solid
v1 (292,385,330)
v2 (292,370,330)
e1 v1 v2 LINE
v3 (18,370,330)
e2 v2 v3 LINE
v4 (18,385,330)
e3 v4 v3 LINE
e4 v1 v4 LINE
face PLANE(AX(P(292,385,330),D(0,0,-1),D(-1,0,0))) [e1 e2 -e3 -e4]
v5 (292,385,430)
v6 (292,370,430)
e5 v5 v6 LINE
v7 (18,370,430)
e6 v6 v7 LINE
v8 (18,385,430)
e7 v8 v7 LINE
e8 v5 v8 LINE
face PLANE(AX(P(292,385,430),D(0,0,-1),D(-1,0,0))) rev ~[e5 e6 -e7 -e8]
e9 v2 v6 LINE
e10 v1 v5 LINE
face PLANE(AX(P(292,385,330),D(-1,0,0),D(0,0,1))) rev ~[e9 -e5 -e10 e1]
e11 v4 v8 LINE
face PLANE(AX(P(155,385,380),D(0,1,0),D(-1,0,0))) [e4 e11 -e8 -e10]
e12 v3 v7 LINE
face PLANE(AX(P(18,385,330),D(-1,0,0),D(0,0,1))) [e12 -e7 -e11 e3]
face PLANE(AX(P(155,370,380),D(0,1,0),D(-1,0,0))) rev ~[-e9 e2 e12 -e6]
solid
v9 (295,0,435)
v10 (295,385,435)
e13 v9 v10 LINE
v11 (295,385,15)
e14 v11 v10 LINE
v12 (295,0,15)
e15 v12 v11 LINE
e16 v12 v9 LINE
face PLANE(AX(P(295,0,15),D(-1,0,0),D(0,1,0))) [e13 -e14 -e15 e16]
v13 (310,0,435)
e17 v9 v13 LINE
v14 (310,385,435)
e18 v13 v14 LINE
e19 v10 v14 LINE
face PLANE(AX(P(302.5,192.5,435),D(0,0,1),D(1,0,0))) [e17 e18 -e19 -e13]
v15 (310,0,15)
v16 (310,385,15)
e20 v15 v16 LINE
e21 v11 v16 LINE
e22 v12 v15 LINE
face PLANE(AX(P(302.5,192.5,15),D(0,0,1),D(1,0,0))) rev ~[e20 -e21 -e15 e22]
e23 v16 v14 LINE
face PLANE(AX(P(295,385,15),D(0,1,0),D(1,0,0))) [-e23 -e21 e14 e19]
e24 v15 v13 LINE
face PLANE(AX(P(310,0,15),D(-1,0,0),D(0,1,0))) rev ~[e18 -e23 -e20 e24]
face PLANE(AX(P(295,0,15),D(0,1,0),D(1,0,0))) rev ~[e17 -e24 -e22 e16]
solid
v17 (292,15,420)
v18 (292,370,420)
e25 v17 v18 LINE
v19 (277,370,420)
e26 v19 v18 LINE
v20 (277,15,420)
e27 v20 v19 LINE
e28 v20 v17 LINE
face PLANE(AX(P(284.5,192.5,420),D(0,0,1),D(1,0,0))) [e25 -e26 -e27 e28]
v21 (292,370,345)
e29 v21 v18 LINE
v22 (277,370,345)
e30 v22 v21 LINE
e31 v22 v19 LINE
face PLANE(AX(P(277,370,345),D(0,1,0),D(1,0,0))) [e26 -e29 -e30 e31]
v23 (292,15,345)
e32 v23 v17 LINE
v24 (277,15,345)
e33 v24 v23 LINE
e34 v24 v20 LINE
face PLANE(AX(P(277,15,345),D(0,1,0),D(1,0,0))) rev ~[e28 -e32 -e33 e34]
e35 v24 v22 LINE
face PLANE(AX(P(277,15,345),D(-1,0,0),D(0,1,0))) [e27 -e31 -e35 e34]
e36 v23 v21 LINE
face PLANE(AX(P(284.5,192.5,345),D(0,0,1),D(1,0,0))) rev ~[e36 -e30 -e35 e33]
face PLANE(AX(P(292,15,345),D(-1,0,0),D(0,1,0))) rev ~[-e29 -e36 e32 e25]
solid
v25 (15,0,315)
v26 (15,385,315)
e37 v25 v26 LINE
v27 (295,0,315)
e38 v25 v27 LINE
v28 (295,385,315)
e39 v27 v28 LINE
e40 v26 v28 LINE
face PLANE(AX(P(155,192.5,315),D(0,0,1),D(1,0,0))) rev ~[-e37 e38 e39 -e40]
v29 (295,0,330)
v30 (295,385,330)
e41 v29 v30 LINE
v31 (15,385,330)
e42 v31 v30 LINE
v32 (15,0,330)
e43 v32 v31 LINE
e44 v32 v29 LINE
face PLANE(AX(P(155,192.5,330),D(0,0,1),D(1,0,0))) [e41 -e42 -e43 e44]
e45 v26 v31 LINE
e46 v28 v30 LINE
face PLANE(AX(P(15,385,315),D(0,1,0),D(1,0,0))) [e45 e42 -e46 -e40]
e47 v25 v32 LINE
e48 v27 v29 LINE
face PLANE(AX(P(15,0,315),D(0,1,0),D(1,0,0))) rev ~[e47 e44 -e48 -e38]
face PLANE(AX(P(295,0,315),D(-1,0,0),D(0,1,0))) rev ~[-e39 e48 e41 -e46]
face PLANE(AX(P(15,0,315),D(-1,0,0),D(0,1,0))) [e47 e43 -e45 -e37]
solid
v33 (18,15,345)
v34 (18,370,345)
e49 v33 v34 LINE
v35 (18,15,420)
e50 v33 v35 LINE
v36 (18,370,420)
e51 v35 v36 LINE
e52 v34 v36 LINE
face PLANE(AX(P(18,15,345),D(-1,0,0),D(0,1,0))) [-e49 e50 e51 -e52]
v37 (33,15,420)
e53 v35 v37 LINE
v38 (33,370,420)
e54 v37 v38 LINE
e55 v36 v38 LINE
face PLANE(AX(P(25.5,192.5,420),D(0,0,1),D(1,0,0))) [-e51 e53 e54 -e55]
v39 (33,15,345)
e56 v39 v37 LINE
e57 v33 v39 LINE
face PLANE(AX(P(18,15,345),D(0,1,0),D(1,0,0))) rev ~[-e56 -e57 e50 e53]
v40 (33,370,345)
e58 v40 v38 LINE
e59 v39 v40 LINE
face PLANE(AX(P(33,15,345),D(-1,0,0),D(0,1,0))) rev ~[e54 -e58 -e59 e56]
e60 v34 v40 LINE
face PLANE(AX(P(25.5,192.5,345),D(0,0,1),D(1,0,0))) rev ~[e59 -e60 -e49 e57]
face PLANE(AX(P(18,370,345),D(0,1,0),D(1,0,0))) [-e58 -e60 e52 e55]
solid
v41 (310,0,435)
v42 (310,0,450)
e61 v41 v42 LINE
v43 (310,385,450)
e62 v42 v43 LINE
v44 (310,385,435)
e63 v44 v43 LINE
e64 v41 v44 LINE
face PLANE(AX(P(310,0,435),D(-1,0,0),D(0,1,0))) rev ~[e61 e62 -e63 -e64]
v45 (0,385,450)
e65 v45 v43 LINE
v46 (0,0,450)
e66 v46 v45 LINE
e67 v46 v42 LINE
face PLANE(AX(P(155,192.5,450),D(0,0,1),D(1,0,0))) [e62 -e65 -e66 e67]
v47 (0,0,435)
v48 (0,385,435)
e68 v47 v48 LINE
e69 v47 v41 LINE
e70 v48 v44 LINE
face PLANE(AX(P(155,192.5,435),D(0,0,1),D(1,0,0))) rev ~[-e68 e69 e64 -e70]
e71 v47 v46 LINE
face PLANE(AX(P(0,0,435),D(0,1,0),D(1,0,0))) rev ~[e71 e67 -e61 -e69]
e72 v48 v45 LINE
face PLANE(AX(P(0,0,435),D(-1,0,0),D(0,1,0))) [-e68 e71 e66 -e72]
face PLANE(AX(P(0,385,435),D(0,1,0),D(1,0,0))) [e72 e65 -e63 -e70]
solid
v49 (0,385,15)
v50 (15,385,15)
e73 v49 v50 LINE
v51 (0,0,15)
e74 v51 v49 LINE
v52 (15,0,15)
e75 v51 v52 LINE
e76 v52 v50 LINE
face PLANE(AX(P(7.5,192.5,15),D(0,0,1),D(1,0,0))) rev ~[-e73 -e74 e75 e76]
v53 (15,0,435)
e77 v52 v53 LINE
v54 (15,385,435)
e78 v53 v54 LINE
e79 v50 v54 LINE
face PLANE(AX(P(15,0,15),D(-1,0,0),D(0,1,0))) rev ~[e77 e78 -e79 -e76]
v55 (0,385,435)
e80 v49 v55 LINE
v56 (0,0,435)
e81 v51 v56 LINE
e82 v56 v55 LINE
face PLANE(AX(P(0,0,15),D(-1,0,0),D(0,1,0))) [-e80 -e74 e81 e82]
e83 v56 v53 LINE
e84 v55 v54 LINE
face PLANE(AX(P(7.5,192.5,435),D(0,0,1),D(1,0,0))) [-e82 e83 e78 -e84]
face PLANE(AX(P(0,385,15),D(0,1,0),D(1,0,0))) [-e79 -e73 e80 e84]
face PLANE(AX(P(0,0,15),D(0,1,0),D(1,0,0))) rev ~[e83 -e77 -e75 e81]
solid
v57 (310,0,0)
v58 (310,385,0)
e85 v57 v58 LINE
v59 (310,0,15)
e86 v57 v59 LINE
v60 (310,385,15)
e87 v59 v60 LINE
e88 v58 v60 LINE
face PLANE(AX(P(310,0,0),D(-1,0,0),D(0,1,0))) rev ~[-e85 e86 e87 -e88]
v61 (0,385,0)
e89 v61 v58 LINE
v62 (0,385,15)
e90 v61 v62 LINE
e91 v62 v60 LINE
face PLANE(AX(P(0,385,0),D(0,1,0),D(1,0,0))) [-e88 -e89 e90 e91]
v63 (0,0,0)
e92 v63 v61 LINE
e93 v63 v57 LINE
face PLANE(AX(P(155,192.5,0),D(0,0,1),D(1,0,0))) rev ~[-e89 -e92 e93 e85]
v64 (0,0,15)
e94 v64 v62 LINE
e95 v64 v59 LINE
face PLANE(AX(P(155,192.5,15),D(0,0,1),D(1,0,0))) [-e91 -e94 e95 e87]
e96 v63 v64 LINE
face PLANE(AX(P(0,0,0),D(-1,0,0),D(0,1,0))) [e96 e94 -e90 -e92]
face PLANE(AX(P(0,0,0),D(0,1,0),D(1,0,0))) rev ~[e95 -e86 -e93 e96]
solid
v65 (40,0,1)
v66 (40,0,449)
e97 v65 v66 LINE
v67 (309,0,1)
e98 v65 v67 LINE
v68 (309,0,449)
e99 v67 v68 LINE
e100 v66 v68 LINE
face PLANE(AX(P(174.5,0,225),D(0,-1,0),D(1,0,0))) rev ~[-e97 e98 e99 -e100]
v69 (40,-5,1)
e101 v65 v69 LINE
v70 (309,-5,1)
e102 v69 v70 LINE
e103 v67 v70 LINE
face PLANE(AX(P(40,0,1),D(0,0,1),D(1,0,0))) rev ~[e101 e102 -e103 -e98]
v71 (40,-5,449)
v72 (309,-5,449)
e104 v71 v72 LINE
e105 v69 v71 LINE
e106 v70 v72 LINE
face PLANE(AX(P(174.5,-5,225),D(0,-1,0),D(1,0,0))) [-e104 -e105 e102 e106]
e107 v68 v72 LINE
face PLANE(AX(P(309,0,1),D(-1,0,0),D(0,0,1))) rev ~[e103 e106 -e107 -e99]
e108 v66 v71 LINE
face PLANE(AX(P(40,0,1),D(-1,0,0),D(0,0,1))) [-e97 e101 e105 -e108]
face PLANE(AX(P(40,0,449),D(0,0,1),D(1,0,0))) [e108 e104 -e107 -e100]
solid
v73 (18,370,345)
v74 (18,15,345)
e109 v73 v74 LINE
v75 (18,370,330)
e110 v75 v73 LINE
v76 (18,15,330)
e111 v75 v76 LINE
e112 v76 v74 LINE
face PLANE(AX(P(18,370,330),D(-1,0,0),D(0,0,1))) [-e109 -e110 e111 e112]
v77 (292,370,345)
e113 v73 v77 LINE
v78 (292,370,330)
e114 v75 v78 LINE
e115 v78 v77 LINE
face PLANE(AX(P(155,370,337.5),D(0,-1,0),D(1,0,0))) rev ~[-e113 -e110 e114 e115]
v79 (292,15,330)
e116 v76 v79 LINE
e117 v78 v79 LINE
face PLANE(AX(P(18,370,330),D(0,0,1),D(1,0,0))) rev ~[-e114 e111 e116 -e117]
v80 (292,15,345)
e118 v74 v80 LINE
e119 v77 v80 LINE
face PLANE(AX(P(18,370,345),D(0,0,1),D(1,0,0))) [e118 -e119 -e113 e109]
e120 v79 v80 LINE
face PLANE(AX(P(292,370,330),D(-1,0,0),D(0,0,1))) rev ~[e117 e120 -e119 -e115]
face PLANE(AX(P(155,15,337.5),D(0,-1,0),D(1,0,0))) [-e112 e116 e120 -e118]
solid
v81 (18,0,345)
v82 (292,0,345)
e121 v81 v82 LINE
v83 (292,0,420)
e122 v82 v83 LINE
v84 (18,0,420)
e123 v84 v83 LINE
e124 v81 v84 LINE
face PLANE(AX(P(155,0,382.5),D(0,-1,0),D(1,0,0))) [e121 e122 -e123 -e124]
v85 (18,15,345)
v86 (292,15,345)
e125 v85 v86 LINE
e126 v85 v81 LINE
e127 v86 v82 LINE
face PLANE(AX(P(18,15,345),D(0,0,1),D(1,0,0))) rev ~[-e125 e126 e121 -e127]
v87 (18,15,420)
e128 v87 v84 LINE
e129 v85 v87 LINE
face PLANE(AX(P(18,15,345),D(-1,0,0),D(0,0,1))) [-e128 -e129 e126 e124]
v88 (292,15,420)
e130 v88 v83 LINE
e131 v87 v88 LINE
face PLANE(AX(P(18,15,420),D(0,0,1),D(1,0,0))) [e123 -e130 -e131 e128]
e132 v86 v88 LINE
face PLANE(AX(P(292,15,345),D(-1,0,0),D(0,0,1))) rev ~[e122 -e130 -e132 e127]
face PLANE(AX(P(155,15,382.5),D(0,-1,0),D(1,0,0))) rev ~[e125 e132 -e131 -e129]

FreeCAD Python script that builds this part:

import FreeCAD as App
import Part
import Sketcher
Q = App.Units.Quantity


def add_polygon(sketch, points):
    """Adds a closed chain of lines whose ends are joined by coincident constraints."""
    first, n = sketch.GeometryCount, len(points)
    for a, b in zip(points, points[1:] + points[:1]):
        sketch.addGeometry(Part.LineSegment(App.Vector(*a, 0), App.Vector(*b, 0)), False)
    for i in range(n):
        sketch.addConstraint(Sketcher.Constraint("Coincident", first + i, 2, first + (i + 1) % n, 1))

doc = App.newDocument("Part")
body = doc.addObject("PartDesign::Body", "Body")

# Sketch on XY plane
sketch1 = body.newObject("Sketcher::SketchObject", "Sketch")
sketch1.AttachmentSupport = (doc.getObject("XY_Plane"), [""])
sketch1.MapMode = "FlatFace"
add_polygon(sketch1, [(0, 385), (0, 0), (310, 0), (310, 385)])  # lines 0-3
sketch1.addConstraint(Sketcher.Constraint("Vertical", 0))
sketch1.addConstraint(Sketcher.Constraint("Horizontal", 1))
sketch1.addConstraint(Sketcher.Constraint("Vertical", 2))
sketch1.addConstraint(Sketcher.Constraint("Horizontal", 3))
sketch1.addConstraint(Sketcher.Constraint("Coincident", 0, 2, -1, 1))
sketch1.addConstraint(Sketcher.Constraint("DistanceX", 1, 1, 1, 2, Q("310 mm")))
sketch1.addConstraint(Sketcher.Constraint("DistanceY", 0, 2, 0, 1, Q("385 mm")))
pad1 = body.newObject("PartDesign::Pad", "Pad")
pad1.Profile = sketch1
pad1.Length = 15
body2 = doc.addObject("PartDesign::Body", "Body001")

# Sketch on XY plane
sketch2 = body2.newObject("Sketcher::SketchObject", "Sketch001")
sketch2.AttachmentSupport = (doc.getObject("XY_Plane001"), [""])
sketch2.MapMode = "FlatFace"
sketch2.AttachmentOffset = App.Placement(App.Vector(0, 0, 15), App.Rotation())
add_polygon(sketch2, [(0, 385), (0, 0), (15, 0), (15, 385)])  # lines 0-3
sketch2.addConstraint(Sketcher.Constraint("Vertical", 0))
sketch2.addConstraint(Sketcher.Constraint("Horizontal", 1))
sketch2.addConstraint(Sketcher.Constraint("Vertical", 2))
sketch2.addConstraint(Sketcher.Constraint("Horizontal", 3))
sketch2.addConstraint(Sketcher.Constraint("Coincident", 0, 2, -1, 1))
sketch2.addConstraint(Sketcher.Constraint("DistanceX", 1, 1, 1, 2, Q("15 mm")))
sketch2.addConstraint(Sketcher.Constraint("DistanceY", 0, 2, 0, 1, Q("385 mm")))
pad2 = body2.newObject("PartDesign::Pad", "Pad001")
pad2.Profile = sketch2
pad2.Length = 420
body3 = doc.addObject("PartDesign::Body", "Body002")

# Sketch on XY plane
sketch3 = body3.newObject("Sketcher::SketchObject", "Sketch002")
sketch3.AttachmentSupport = (doc.getObject("XY_Plane002"), [""])
sketch3.MapMode = "FlatFace"
sketch3.AttachmentOffset = App.Placement(App.Vector(0, 0, 15), App.Rotation())
add_polygon(sketch3, [(295, 385), (295, 0), (310, 0), (310, 385)])  # lines 0-3
sketch3.addConstraint(Sketcher.Constraint("Vertical", 0))
sketch3.addConstraint(Sketcher.Constraint("Horizontal", 1))
sketch3.addConstraint(Sketcher.Constraint("Vertical", 2))
sketch3.addConstraint(Sketcher.Constraint("Horizontal", 3))
sketch3.addConstraint(Sketcher.Constraint("PointOnObject", 0, 2, -1))
sketch3.addConstraint(Sketcher.Constraint("DistanceX", 1, 1, 1, 2, Q("15 mm")))
sketch3.addConstraint(Sketcher.Constraint("DistanceY", 0, 2, 0, 1, Q("385 mm")))
sketch3.addConstraint(Sketcher.Constraint("DistanceX", -1, 1, 0, 2, Q("295 mm")))
pad3 = body3.newObject("PartDesign::Pad", "Pad002")
pad3.Profile = sketch3
pad3.Length = 420
body4 = doc.addObject("PartDesign::Body", "Body003")

# Sketch on XY plane
sketch4 = body4.newObject("Sketcher::SketchObject", "Sketch003")
sketch4.AttachmentSupport = (doc.getObject("XY_Plane003"), [""])
sketch4.MapMode = "FlatFace"
sketch4.AttachmentOffset = App.Placement(App.Vector(0, 0, 315), App.Rotation())
add_polygon(sketch4, [(15, 385), (15, 0), (295, 0), (295, 385)])  # lines 0-3
sketch4.addConstraint(Sketcher.Constraint("Vertical", 0))
sketch4.addConstraint(Sketcher.Constraint("Horizontal", 1))
sketch4.addConstraint(Sketcher.Constraint("Vertical", 2))
sketch4.addConstraint(Sketcher.Constraint("Horizontal", 3))
sketch4.addConstraint(Sketcher.Constraint("PointOnObject", 0, 2, -1))
sketch4.addConstraint(Sketcher.Constraint("DistanceX", 1, 1, 1, 2, Q("280 mm")))
sketch4.addConstraint(Sketcher.Constraint("DistanceY", 0, 2, 0, 1, Q("385 mm")))
sketch4.addConstraint(Sketcher.Constraint("DistanceX", -1, 1, 0, 2, Q("15 mm")))
pad4 = body4.newObject("PartDesign::Pad", "Pad003")
pad4.Profile = sketch4
pad4.Length = 15
body5 = doc.addObject("PartDesign::Body", "Body004")

# Sketch on XY plane
sketch5 = body5.newObject("Sketcher::SketchObject", "Sketch004")
sketch5.AttachmentSupport = (doc.getObject("XY_Plane004"), [""])
sketch5.MapMode = "FlatFace"
sketch5.AttachmentOffset = App.Placement(App.Vector(0, 0, 435), App.Rotation())
add_polygon(sketch5, [(0, 385), (0, 0), (310, 0), (310, 385)])  # lines 0-3
sketch5.addConstraint(Sketcher.Constraint("Vertical", 0))
sketch5.addConstraint(Sketcher.Constraint("Horizontal", 1))
sketch5.addConstraint(Sketcher.Constraint("Vertical", 2))
sketch5.addConstraint(Sketcher.Constraint("Horizontal", 3))
sketch5.addConstraint(Sketcher.Constraint("Coincident", 0, 2, -1, 1))
sketch5.addConstraint(Sketcher.Constraint("DistanceX", 1, 1, 1, 2, Q("310 mm")))
sketch5.addConstraint(Sketcher.Constraint("DistanceY", 0, 2, 0, 1, Q("385 mm")))
pad5 = body5.newObject("PartDesign::Pad", "Pad004")
pad5.Profile = sketch5
pad5.Length = 15
body6 = doc.addObject("PartDesign::Body", "Body005")

# Sketch on XZ plane
sketch6 = body6.newObject("Sketcher::SketchObject", "Sketch005")
sketch6.AttachmentSupport = (doc.getObject("XZ_Plane005"), [""])
sketch6.MapMode = "FlatFace"
add_polygon(sketch6, [(40, 449), (40, 1), (309, 1), (309, 449)])  # lines 0-3
sketch6.addConstraint(Sketcher.Constraint("Vertical", 0))
sketch6.addConstraint(Sketcher.Constraint("Horizontal", 1))
sketch6.addConstraint(Sketcher.Constraint("Vertical", 2))
sketch6.addConstraint(Sketcher.Constraint("Horizontal", 3))
sketch6.addConstraint(Sketcher.Constraint("DistanceX", 1, 1, 1, 2, Q("269 mm")))
sketch6.addConstraint(Sketcher.Constraint("DistanceY", 0, 2, 0, 1, Q("448 mm")))
sketch6.addConstraint(Sketcher.Constraint("DistanceX", -1, 1, 0, 2, Q("40 mm")))
sketch6.addConstraint(Sketcher.Constraint("DistanceY", -1, 1, 0, 2, Q("1 mm")))
pad6 = body6.newObject("PartDesign::Pad", "Pad005")
pad6.Profile = sketch6
pad6.Length = 5
body7 = doc.addObject("PartDesign::Body", "Body006")

# Sketch on XZ plane
sketch7 = body7.newObject("Sketcher::SketchObject", "Sketch006")
sketch7.AttachmentSupport = (doc.getObject("XZ_Plane006"), [""])
sketch7.MapMode = "FlatFace"
sketch7.AttachmentOffset = App.Placement(App.Vector(0, 0, -385), App.Rotation())
add_polygon(sketch7, [(292, 430), (292, 330), (18, 330), (18, 430)])  # lines 0-3
sketch7.addConstraint(Sketcher.Constraint("Vertical", 0))
sketch7.addConstraint(Sketcher.Constraint("Horizontal", 1))
sketch7.addConstraint(Sketcher.Constraint("Vertical", 2))
sketch7.addConstraint(Sketcher.Constraint("Horizontal", 3))
sketch7.addConstraint(Sketcher.Constraint("DistanceX", 1, 2, 1, 1, Q("274 mm")))
sketch7.addConstraint(Sketcher.Constraint("DistanceY", 0, 2, 0, 1, Q("100 mm")))
sketch7.addConstraint(Sketcher.Constraint("DistanceX", -1, 1, 0, 2, Q("292 mm")))
sketch7.addConstraint(Sketcher.Constraint("DistanceY", -1, 1, 0, 2, Q("330 mm")))
pad7 = body7.newObject("PartDesign::Pad", "Pad006")
pad7.Profile = sketch7
pad7.Length = 15
body8 = doc.addObject("PartDesign::Body", "Body007")

# Sketch on XZ plane
sketch8 = body8.newObject("Sketcher::SketchObject", "Sketch007")
sketch8.AttachmentSupport = (doc.getObject("XZ_Plane007"), [""])
sketch8.MapMode = "FlatFace"
sketch8.AttachmentOffset = App.Placement(App.Vector(0, 0, -370), App.Rotation())
add_polygon(sketch8, [(18, 345), (18, 330), (292, 330), (292, 345)])  # lines 0-3
sketch8.addConstraint(Sketcher.Constraint("Vertical", 0))
sketch8.addConstraint(Sketcher.Constraint("Horizontal", 1))
sketch8.addConstraint(Sketcher.Constraint("Vertical", 2))
sketch8.addConstraint(Sketcher.Constraint("Horizontal", 3))
sketch8.addConstraint(Sketcher.Constraint("DistanceX", 1, 1, 1, 2, Q("274 mm")))
sketch8.addConstraint(Sketcher.Constraint("DistanceY", 0, 2, 0, 1, Q("15 mm")))
sketch8.addConstraint(Sketcher.Constraint("DistanceX", -1, 1, 0, 2, Q("18 mm")))
sketch8.addConstraint(Sketcher.Constraint("DistanceY", -1, 1, 0, 2, Q("330 mm")))
pad8 = body8.newObject("PartDesign::Pad", "Pad007")
pad8.Profile = sketch8
pad8.Length = 355
body9 = doc.addObject("PartDesign::Body", "Body008")

# Sketch on XZ plane
sketch9 = body9.newObject("Sketcher::SketchObject", "Sketch008")
sketch9.AttachmentSupport = (doc.getObject("XZ_Plane008"), [""])
sketch9.MapMode = "FlatFace"
sketch9.AttachmentOffset = App.Placement(App.Vector(0, 0, -15), App.Rotation())
add_polygon(sketch9, [(18, 420), (18, 345), (292, 345), (292, 420)])  # lines 0-3
sketch9.addConstraint(Sketcher.Constraint("Vertical", 0))
sketch9.addConstraint(Sketcher.Constraint("Horizontal", 1))
sketch9.addConstraint(Sketcher.Constraint("Vertical", 2))
sketch9.addConstraint(Sketcher.Constraint("Horizontal", 3))
sketch9.addConstraint(Sketcher.Constraint("DistanceX", 1, 1, 1, 2, Q("274 mm")))
sketch9.addConstraint(Sketcher.Constraint("DistanceY", 0, 2, 0, 1, Q("75 mm")))
sketch9.addConstraint(Sketcher.Constraint("DistanceX", -1, 1, 0, 2, Q("18 mm")))
sketch9.addConstraint(Sketcher.Constraint("DistanceY", -1, 1, 0, 2, Q("345 mm")))
pad9 = body9.newObject("PartDesign::Pad", "Pad008")
pad9.Profile = sketch9
pad9.Length = 15
body10 = doc.addObject("PartDesign::Body", "Body009")

# Sketch on XY plane
sketch10 = body10.newObject("Sketcher::SketchObject", "Sketch009")
sketch10.AttachmentSupport = (doc.getObject("XY_Plane009"), [""])
sketch10.MapMode = "FlatFace"
sketch10.AttachmentOffset = App.Placement(App.Vector(0, 0, 345), App.Rotation())
add_polygon(sketch10, [(18, 370), (18, 15), (33, 15), (33, 370)])  # lines 0-3
sketch10.addConstraint(Sketcher.Constraint("Vertical", 0))
sketch10.addConstraint(Sketcher.Constraint("Horizontal", 1))
sketch10.addConstraint(Sketcher.Constraint("Vertical", 2))
sketch10.addConstraint(Sketcher.Constraint("Horizontal", 3))
sketch10.addConstraint(Sketcher.Constraint("DistanceX", 1, 1, 1, 2, Q("15 mm")))
sketch10.addConstraint(Sketcher.Constraint("DistanceY", 0, 2, 0, 1, Q("355 mm")))
sketch10.addConstraint(Sketcher.Constraint("DistanceX", -1, 1, 0, 2, Q("18 mm")))
sketch10.addConstraint(Sketcher.Constraint("DistanceY", -1, 1, 0, 2, Q("15 mm")))
pad10 = body10.newObject("PartDesign::Pad", "Pad009")
pad10.Profile = sketch10
pad10.Length = 75
body11 = doc.addObject("PartDesign::Body", "Body010")

# Sketch on XY plane
sketch11 = body11.newObject("Sketcher::SketchObject", "Sketch010")
sketch11.AttachmentSupport = (doc.getObject("XY_Plane010"), [""])
sketch11.MapMode = "FlatFace"
sketch11.AttachmentOffset = App.Placement(App.Vector(0, 0, 345), App.Rotation())
add_polygon(sketch11, [(277, 370), (277, 15), (292, 15), (292, 370)])  # lines 0-3
sketch11.addConstraint(Sketcher.Constraint("Vertical", 0))
sketch11.addConstraint(Sketcher.Constraint("Horizontal", 1))
sketch11.addConstraint(Sketcher.Constraint("Vertical", 2))
sketch11.addConstraint(Sketcher.Constraint("Horizontal", 3))
sketch11.addConstraint(Sketcher.Constraint("DistanceX", 1, 1, 1, 2, Q("15 mm")))
sketch11.addConstraint(Sketcher.Constraint("DistanceY", 0, 2, 0, 1, Q("355 mm")))
sketch11.addConstraint(Sketcher.Constraint("DistanceX", -1, 1, 0, 2, Q("277 mm")))
sketch11.addConstraint(Sketcher.Constraint("DistanceY", -1, 1, 0, 2, Q("15 mm")))
pad11 = body11.newObject("PartDesign::Pad", "Pad010")
pad11.Profile = sketch11
pad11.Length = 75

doc.recompute()
